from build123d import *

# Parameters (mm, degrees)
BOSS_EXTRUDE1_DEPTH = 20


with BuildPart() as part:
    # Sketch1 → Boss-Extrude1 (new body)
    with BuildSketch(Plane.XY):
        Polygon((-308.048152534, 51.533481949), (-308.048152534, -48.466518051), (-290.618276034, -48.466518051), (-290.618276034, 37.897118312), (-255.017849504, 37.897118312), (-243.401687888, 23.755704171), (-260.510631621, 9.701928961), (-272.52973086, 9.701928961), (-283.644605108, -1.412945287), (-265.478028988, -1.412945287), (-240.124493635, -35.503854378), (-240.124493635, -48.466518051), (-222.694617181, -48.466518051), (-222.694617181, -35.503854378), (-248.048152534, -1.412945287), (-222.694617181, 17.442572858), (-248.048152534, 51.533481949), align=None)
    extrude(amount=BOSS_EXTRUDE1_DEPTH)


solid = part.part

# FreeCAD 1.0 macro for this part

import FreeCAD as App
import Part
import Sketcher

V = App.Vector
Q = App.Units.Quantity


def add_polygon(sketch, points):
    """Adds a closed chain of lines whose ends are joined by coincident constraints."""
    first, n = sketch.GeometryCount, len(points)
    for a, b in zip(points, points[1:] + points[:1]):
        sketch.addGeometry(Part.LineSegment(App.Vector(*a, 0), App.Vector(*b, 0)), False)
    for i in range(n):
        sketch.addConstraint(Sketcher.Constraint("Coincident", first + i, 2, first + (i + 1) % n, 1))

doc = App.newDocument("Part")
body = doc.addObject("PartDesign::Body", "Body")

# Sketch on XY plane
sketch1 = body.newObject("Sketcher::SketchObject", "Sketch")
sketch1.AttachmentSupport = (doc.getObject("XY_Plane"), [""])
sketch1.MapMode = "FlatFace"
add_polygon(sketch1, [(-308.048153, 51.533482), (-308.048153, -48.466518), (-290.618276, -48.466518), (-290.618276, 37.897118), (-255.01785, 37.897118), (-243.401688, 23.755704), (-260.510632, 9.701929), (-272.529731, 9.701929), (-283.644605, -1.412945), (-265.478029, -1.412945), (-240.124494, -35.503854), (-240.124494, -48.466518), (-222.694617, -48.466518), (-222.694617, -35.503854), (-248.048153, -1.412945), (-222.694617, 17.442573), (-248.048153, 51.533482)])  # lines 0-16
sketch1.addConstraint(Sketcher.Constraint("Vertical", 0))
sketch1.addConstraint(Sketcher.Constraint("Horizontal", 1))
sketch1.addConstraint(Sketcher.Constraint("Vertical", 2))
sketch1.addConstraint(Sketcher.Constraint("Horizontal", 3))
sketch1.addConstraint(Sketcher.Constraint("Horizontal", 6))
sketch1.addConstraint(Sketcher.Constraint("Horizontal", 8))
sketch1.addConstraint(Sketcher.Constraint("Vertical", 10))
sketch1.addConstraint(Sketcher.Constraint("Horizontal", 11))
sketch1.addConstraint(Sketcher.Constraint("Vertical", 12))
sketch1.addConstraint(Sketcher.Constraint("Horizontal", 16))
sketch1.addConstraint(Sketcher.Constraint("Perpendicular", 4, 5))
sketch1.addConstraint(Sketcher.Constraint("Parallel", 9, 13))
sketch1.addConstraint(Sketcher.Constraint("Perpendicular", 13, 14))
sketch1.addConstraint(Sketcher.Constraint("Perpendicular", 14, 15))
sketch1.addConstraint(Sketcher.Constraint("Horizontal", 1, 2, 10, 2))
sketch1.addConstraint(Sketcher.Constraint("Horizontal", 9, 2, 12, 2))
sketch1.addConstraint(Sketcher.Constraint("Horizontal", 8, 2, 13, 2))
sketch1.addConstraint(Sketcher.Constraint("Vertical", 12, 2, 14, 2))
sketch1.addConstraint(Sketcher.Constraint("Vertical", 13, 2, 15, 2))
sketch1.addConstraint(Sketcher.Constraint("Equal", 1, 11))
sketch1.addConstraint(Sketcher.Constraint("DistanceX", 16, 2, 16, 1, 60.0))
sketch1.addConstraint(Sketcher.Constraint("DistanceY", 0, 2, 0, 1, 100.0))
sketch1.addConstraint(Sketcher.Constraint("Angle", 7, Q("-135 deg")))
sketch1.addConstraint(Sketcher.Constraint("DistanceX", 6, 2, 6, 1, 12.019099))
sketch1.addConstraint(Sketcher.Constraint("DistanceX", 6, 2, 8, 2, 7.051702))
sketch1.addConstraint(Sketcher.Constraint("DistanceX", 1, 1, 1, 2, 17.429876))
sketch1.addConstraint(Sketcher.Constraint("DistanceX", 3, 1, 3, 2, 35.600427))
sketch1.addConstraint(Sketcher.Constraint("DistanceX", 8, 1, 8, 2, 18.166576))
sketch1.addConstraint(Sketcher.Constraint("DistanceY", 2, 1, 2, 2, 86.363636))
sketch1.addConstraint(Sketcher.Constraint("DistanceY", 10, 2, 10, 1, 12.962664))
sketch1.addConstraint(Sketcher.Constraint("DistanceY", 0, 2, -1, 1, 48.466518))
sketch1.addConstraint(Sketcher.Constraint("DistanceX", 3, 2, -1, 1, 255.01785))
sketch1.addConstraint(Sketcher.Constraint("DistanceY", -1, 1, 5, 2, 9.701929))
sketch1.addConstraint(Sketcher.Constraint("DistanceY", 7, 2, 4, 2, 25.168649))
pad1 = body.newObject("PartDesign::Pad", "Pad")
pad1.Profile = sketch1
pad1.Length = 20

doc.recompute()
